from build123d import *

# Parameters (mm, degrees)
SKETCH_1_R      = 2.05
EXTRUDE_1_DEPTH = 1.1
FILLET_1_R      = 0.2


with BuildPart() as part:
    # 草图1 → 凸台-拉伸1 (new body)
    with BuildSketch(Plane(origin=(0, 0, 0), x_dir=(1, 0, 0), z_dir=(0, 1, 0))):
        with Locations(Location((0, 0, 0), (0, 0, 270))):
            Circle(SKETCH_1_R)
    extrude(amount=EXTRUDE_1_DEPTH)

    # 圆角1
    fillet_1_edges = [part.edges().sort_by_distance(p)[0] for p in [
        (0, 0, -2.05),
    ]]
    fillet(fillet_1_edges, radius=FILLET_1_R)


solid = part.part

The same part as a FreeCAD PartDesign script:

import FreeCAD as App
import Part
import Sketcher


def edges_at(feature, points):
    """Names of the edges that pass closest to the given points."""
    edges = feature.Shape.Edges
    near = lambda p: min(range(len(edges)), key=lambda i: edges[i].distToShape(Part.Vertex(*p))[0])
    return sorted({f"Edge{near(p) + 1}" for p in points})

doc = App.newDocument("Part")
params = doc.addObject("Spreadsheet::Sheet", "Params")
for row, (alias, value) in enumerate([
    ("sketch1_diameter", "4.1 mm"),
    ("pad1_length", "1.1 mm"),
    ("fillet_radius", "0.2 mm"),
], start=1):
    params.set(f"A{row}", alias)
    params.set(f"B{row}", "=" + value)
    params.setAlias(f"B{row}", alias)

body = doc.addObject("PartDesign::Body", "Body")

# Sketch on XZ plane
sketch1 = doc.addObject("Sketcher::SketchObject", "Sketch")
body.addObject(sketch1)
sketch1.AttachmentSupport = (doc.XZ_Plane, [""])
sketch1.MapMode = "FlatFace"
sketch1.addGeometry(Part.Circle(App.Vector(0, 0, 0), App.Vector(0, 0, 1), 2), False)
sketch1.addConstraint([
    Sketcher.Constraint("Coincident", 0, 3, -1, 1),
    Sketcher.Constraint("Diameter", 0, 4.1),
])
sketch1.setExpression("Constraints[1]", "Params.sketch1_diameter")
pad1 = doc.addObject("PartDesign::Pad", "Pad")
body.addObject(pad1)
pad1.Profile = sketch1
pad1.setExpression("Length", "Params.pad1_length")
pad1.Reversed = True
doc.recompute()

fillet = doc.addObject("PartDesign::Fillet", "Fillet")
body.addObject(fillet)
fillet.Base = (pad1, edges_at(pad1, [(0, 0, -2.05)]))
fillet.setExpression("Radius", "Params.fillet_radius")

doc.recompute()
